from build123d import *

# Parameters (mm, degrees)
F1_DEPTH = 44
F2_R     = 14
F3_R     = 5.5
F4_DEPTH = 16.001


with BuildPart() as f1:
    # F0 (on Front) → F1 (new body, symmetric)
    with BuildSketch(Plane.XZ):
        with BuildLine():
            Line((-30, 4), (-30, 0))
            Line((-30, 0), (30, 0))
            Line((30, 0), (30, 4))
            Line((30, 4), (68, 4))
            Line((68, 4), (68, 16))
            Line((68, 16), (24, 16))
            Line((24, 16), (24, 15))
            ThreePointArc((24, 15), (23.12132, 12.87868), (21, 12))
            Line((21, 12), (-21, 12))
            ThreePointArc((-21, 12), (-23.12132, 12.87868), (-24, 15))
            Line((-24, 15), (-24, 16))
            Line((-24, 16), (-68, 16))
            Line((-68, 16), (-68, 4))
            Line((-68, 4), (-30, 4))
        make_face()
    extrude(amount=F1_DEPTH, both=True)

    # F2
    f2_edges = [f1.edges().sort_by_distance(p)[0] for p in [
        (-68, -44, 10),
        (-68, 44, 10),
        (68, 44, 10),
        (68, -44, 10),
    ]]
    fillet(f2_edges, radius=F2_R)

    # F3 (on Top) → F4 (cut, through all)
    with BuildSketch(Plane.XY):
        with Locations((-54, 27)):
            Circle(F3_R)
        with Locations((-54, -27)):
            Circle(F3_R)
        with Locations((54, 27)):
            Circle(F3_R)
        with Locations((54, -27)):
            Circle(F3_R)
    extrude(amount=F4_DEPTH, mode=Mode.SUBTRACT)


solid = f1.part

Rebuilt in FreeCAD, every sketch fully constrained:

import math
import FreeCAD as App
import Part
import Sketcher

V = App.Vector


def edges_at(feature, points):
    """Names of the edges that pass closest to the given points."""
    edges = feature.Shape.Edges
    near = lambda p: min(range(len(edges)), key=lambda i: edges[i].distToShape(Part.Vertex(*p))[0])
    return sorted({f"Edge{near(p) + 1}" for p in points})

doc = App.newDocument("Part")
params = doc.addObject("Spreadsheet::Sheet", "Params")
for row, (alias, value) in enumerate([
    ("sketch1_radius", "3.000001 mm"),
    ("sketch1_width", "60 mm"),
    ("sketch1_width2", "38 mm"),
    ("sketch1_width3", "44 mm"),
    ("sketch1_height", "4 mm"),
    ("pad1_length", "88 mm"),
    ("fillet_radius", "14 mm"),
    ("sketch2_diameter", "11 mm"),
], start=1):
    params.set(f"A{row}", alias)
    params.set(f"B{row}", "=" + value)
    params.setAlias(f"B{row}", alias)

body = doc.addObject("PartDesign::Body", "Body")

# Sketch on XZ plane
sketch1 = body.newObject("Sketcher::SketchObject", "Sketch")
sketch1.AttachmentSupport = (doc.getObject("XZ_Plane"), [""])
sketch1.MapMode = "FlatFace"
sketch1.addGeometry(Part.LineSegment(V(-30, 4, 0), V(-30, 0, 0)), False)
sketch1.addGeometry(Part.LineSegment(V(-30, 0, 0), V(30, 0, 0)), False)
sketch1.addGeometry(Part.LineSegment(V(30, 0, 0), V(30, 4, 0)), False)
sketch1.addGeometry(Part.LineSegment(V(30, 4, 0), V(68, 4, 0)), False)
sketch1.addGeometry(Part.LineSegment(V(68, 4, 0), V(68, 16, 0)), False)
sketch1.addGeometry(Part.LineSegment(V(68, 16, 0), V(24, 16, 0)), False)
sketch1.addGeometry(Part.LineSegment(V(24, 16, 0), V(24, 15, 0)), False)
sketch1.addGeometry(Part.ArcOfCircle(Part.Circle(V(20.999999, 15.000001, 0), V(0, 0, 1), 3.000001), math.radians(-89.999978), math.radians(-0.000022)), False)
sketch1.addGeometry(Part.LineSegment(V(21, 12, 0), V(-21, 12, 0)), False)
sketch1.addGeometry(Part.ArcOfCircle(Part.Circle(V(-20.999999, 15.000001, 0), V(0, 0, 1), 3.000001), math.radians(-179.999978), math.radians(-90.000022)), False)
sketch1.addGeometry(Part.LineSegment(V(-24, 15, 0), V(-24, 16, 0)), False)
sketch1.addGeometry(Part.LineSegment(V(-24, 16, 0), V(-68, 16, 0)), False)
sketch1.addGeometry(Part.LineSegment(V(-68, 16, 0), V(-68, 4, 0)), False)
sketch1.addGeometry(Part.LineSegment(V(-68, 4, 0), V(-30, 4, 0)), False)
sketch1.addConstraint(Sketcher.Constraint("Coincident", 0, 2, 1, 1))
sketch1.addConstraint(Sketcher.Constraint("Coincident", 1, 2, 2, 1))
sketch1.addConstraint(Sketcher.Constraint("Coincident", 2, 2, 3, 1))
sketch1.addConstraint(Sketcher.Constraint("Coincident", 3, 2, 4, 1))
sketch1.addConstraint(Sketcher.Constraint("Coincident", 4, 2, 5, 1))
sketch1.addConstraint(Sketcher.Constraint("Coincident", 5, 2, 6, 1))
sketch1.addConstraint(Sketcher.Constraint("Tangent", 6, 2, 7, 2))
sketch1.addConstraint(Sketcher.Constraint("Tangent", 7, 1, 8, 1))
sketch1.addConstraint(Sketcher.Constraint("Tangent", 8, 2, 9, 2))
sketch1.addConstraint(Sketcher.Constraint("Tangent", 9, 1, 10, 1))
sketch1.addConstraint(Sketcher.Constraint("Coincident", 10, 2, 11, 1))
sketch1.addConstraint(Sketcher.Constraint("Coincident", 11, 2, 12, 1))
sketch1.addConstraint(Sketcher.Constraint("Coincident", 12, 2, 13, 1))
sketch1.addConstraint(Sketcher.Constraint("Coincident", 13, 2, 0, 1))
sketch1.addConstraint(Sketcher.Constraint("Vertical", 0))
sketch1.addConstraint(Sketcher.Constraint("Horizontal", 1))
sketch1.addConstraint(Sketcher.Constraint("Vertical", 2))
sketch1.addConstraint(Sketcher.Constraint("Horizontal", 3))
sketch1.addConstraint(Sketcher.Constraint("Vertical", 4))
sketch1.addConstraint(Sketcher.Constraint("Horizontal", 5))
sketch1.addConstraint(Sketcher.Constraint("Vertical", 6))
sketch1.addConstraint(Sketcher.Constraint("Horizontal", 8))
sketch1.addConstraint(Sketcher.Constraint("Vertical", 10))
sketch1.addConstraint(Sketcher.Constraint("Horizontal", 11))
sketch1.addConstraint(Sketcher.Constraint("Vertical", 12))
sketch1.addConstraint(Sketcher.Constraint("Horizontal", 13))
sketch1.addConstraint(Sketcher.Constraint("Equal", 7, 9))
sketch1.addConstraint(Sketcher.Constraint("Symmetric", 0, 2, 1, 2, -1, 1))
sketch1.addConstraint(Sketcher.Constraint("Symmetric", 5, 2, 10, 2, -2))
sketch1.addConstraint(Sketcher.Constraint("Symmetric", 3, 2, 12, 2, -2))
sketch1.addConstraint(Sketcher.Constraint("Radius", 7, 3.000001))
sketch1.addConstraint(Sketcher.Constraint("DistanceX", 1, 1, 1, 2, 60.0))
sketch1.addConstraint(Sketcher.Constraint("DistanceX", 3, 1, 3, 2, 38.0))
sketch1.addConstraint(Sketcher.Constraint("DistanceX", 5, 2, 5, 1, 44.0))
sketch1.addConstraint(Sketcher.Constraint("DistanceY", 0, 2, 0, 1, 4.0))
sketch1.addConstraint(Sketcher.Constraint("DistanceY", 4, 1, 4, 2, 12.0))
sketch1.addConstraint(Sketcher.Constraint("DistanceY", 6, 2, 6, 1, 1.0))
sketch1.setExpression("Constraints[30]", "Params.sketch1_radius")
sketch1.setExpression("Constraints[31]", "Params.sketch1_width")
sketch1.setExpression("Constraints[32]", "Params.sketch1_width2")
sketch1.setExpression("Constraints[33]", "Params.sketch1_width3")
sketch1.setExpression("Constraints[34]", "Params.sketch1_height")
pad1 = body.newObject("PartDesign::Pad", "Pad")
pad1.Profile = sketch1
pad1.setExpression("Length", "Params.pad1_length")
pad1.Midplane = True
doc.recompute()

fillet = body.newObject("PartDesign::Fillet", "Fillet")
fillet.Base = (pad1, edges_at(pad1, [
    (-68, -44, 10),
    (-68, 44, 10),
    (68, 44, 10),
    (68, -44, 10),
]))
fillet.setExpression("Radius", "Params.fillet_radius")

# Sketch on XY plane
sketch2 = body.newObject("Sketcher::SketchObject", "Sketch001")
sketch2.AttachmentSupport = (doc.getObject("XY_Plane"), [""])
sketch2.MapMode = "FlatFace"
sketch2.addGeometry(Part.Circle(V(-54, 27, 0), V(0, 0, 1), 5.5), False)
sketch2.addGeometry(Part.Circle(V(-54, -27, 0), V(0, 0, 1), 5.5), False)
sketch2.addGeometry(Part.Circle(V(54, 27, 0), V(0, 0, 1), 5.5), False)
sketch2.addGeometry(Part.Circle(V(54, -27, 0), V(0, 0, 1), 5.5), False)
sketch2.addConstraint(Sketcher.Constraint("Equal", 0, 1))
sketch2.addConstraint(Sketcher.Constraint("Equal", 1, 2))
sketch2.addConstraint(Sketcher.Constraint("Equal", 2, 3))
sketch2.addConstraint(Sketcher.Constraint("Symmetric", 1, 3, 2, 3, -1, 1))
sketch2.addConstraint(Sketcher.Constraint("Symmetric", 0, 3, 3, 3, -1, 1))
sketch2.addConstraint(Sketcher.Constraint("Symmetric", 0, 3, 2, 3, -2))
sketch2.addConstraint(Sketcher.Constraint("Diameter", 0, 11.0))
sketch2.addConstraint(Sketcher.Constraint("DistanceX", 0, 3, -1, 1, 54.0))
sketch2.addConstraint(Sketcher.Constraint("DistanceY", -1, 1, 0, 3, 27.0))
sketch2.setExpression("Constraints[6]", "Params.sketch2_diameter")
pocket1 = body.newObject("PartDesign::Pocket", "Pocket")
pocket1.Profile = sketch2
pocket1.Type = "ThroughAll"
pocket1.Reversed = True

doc.recompute()
